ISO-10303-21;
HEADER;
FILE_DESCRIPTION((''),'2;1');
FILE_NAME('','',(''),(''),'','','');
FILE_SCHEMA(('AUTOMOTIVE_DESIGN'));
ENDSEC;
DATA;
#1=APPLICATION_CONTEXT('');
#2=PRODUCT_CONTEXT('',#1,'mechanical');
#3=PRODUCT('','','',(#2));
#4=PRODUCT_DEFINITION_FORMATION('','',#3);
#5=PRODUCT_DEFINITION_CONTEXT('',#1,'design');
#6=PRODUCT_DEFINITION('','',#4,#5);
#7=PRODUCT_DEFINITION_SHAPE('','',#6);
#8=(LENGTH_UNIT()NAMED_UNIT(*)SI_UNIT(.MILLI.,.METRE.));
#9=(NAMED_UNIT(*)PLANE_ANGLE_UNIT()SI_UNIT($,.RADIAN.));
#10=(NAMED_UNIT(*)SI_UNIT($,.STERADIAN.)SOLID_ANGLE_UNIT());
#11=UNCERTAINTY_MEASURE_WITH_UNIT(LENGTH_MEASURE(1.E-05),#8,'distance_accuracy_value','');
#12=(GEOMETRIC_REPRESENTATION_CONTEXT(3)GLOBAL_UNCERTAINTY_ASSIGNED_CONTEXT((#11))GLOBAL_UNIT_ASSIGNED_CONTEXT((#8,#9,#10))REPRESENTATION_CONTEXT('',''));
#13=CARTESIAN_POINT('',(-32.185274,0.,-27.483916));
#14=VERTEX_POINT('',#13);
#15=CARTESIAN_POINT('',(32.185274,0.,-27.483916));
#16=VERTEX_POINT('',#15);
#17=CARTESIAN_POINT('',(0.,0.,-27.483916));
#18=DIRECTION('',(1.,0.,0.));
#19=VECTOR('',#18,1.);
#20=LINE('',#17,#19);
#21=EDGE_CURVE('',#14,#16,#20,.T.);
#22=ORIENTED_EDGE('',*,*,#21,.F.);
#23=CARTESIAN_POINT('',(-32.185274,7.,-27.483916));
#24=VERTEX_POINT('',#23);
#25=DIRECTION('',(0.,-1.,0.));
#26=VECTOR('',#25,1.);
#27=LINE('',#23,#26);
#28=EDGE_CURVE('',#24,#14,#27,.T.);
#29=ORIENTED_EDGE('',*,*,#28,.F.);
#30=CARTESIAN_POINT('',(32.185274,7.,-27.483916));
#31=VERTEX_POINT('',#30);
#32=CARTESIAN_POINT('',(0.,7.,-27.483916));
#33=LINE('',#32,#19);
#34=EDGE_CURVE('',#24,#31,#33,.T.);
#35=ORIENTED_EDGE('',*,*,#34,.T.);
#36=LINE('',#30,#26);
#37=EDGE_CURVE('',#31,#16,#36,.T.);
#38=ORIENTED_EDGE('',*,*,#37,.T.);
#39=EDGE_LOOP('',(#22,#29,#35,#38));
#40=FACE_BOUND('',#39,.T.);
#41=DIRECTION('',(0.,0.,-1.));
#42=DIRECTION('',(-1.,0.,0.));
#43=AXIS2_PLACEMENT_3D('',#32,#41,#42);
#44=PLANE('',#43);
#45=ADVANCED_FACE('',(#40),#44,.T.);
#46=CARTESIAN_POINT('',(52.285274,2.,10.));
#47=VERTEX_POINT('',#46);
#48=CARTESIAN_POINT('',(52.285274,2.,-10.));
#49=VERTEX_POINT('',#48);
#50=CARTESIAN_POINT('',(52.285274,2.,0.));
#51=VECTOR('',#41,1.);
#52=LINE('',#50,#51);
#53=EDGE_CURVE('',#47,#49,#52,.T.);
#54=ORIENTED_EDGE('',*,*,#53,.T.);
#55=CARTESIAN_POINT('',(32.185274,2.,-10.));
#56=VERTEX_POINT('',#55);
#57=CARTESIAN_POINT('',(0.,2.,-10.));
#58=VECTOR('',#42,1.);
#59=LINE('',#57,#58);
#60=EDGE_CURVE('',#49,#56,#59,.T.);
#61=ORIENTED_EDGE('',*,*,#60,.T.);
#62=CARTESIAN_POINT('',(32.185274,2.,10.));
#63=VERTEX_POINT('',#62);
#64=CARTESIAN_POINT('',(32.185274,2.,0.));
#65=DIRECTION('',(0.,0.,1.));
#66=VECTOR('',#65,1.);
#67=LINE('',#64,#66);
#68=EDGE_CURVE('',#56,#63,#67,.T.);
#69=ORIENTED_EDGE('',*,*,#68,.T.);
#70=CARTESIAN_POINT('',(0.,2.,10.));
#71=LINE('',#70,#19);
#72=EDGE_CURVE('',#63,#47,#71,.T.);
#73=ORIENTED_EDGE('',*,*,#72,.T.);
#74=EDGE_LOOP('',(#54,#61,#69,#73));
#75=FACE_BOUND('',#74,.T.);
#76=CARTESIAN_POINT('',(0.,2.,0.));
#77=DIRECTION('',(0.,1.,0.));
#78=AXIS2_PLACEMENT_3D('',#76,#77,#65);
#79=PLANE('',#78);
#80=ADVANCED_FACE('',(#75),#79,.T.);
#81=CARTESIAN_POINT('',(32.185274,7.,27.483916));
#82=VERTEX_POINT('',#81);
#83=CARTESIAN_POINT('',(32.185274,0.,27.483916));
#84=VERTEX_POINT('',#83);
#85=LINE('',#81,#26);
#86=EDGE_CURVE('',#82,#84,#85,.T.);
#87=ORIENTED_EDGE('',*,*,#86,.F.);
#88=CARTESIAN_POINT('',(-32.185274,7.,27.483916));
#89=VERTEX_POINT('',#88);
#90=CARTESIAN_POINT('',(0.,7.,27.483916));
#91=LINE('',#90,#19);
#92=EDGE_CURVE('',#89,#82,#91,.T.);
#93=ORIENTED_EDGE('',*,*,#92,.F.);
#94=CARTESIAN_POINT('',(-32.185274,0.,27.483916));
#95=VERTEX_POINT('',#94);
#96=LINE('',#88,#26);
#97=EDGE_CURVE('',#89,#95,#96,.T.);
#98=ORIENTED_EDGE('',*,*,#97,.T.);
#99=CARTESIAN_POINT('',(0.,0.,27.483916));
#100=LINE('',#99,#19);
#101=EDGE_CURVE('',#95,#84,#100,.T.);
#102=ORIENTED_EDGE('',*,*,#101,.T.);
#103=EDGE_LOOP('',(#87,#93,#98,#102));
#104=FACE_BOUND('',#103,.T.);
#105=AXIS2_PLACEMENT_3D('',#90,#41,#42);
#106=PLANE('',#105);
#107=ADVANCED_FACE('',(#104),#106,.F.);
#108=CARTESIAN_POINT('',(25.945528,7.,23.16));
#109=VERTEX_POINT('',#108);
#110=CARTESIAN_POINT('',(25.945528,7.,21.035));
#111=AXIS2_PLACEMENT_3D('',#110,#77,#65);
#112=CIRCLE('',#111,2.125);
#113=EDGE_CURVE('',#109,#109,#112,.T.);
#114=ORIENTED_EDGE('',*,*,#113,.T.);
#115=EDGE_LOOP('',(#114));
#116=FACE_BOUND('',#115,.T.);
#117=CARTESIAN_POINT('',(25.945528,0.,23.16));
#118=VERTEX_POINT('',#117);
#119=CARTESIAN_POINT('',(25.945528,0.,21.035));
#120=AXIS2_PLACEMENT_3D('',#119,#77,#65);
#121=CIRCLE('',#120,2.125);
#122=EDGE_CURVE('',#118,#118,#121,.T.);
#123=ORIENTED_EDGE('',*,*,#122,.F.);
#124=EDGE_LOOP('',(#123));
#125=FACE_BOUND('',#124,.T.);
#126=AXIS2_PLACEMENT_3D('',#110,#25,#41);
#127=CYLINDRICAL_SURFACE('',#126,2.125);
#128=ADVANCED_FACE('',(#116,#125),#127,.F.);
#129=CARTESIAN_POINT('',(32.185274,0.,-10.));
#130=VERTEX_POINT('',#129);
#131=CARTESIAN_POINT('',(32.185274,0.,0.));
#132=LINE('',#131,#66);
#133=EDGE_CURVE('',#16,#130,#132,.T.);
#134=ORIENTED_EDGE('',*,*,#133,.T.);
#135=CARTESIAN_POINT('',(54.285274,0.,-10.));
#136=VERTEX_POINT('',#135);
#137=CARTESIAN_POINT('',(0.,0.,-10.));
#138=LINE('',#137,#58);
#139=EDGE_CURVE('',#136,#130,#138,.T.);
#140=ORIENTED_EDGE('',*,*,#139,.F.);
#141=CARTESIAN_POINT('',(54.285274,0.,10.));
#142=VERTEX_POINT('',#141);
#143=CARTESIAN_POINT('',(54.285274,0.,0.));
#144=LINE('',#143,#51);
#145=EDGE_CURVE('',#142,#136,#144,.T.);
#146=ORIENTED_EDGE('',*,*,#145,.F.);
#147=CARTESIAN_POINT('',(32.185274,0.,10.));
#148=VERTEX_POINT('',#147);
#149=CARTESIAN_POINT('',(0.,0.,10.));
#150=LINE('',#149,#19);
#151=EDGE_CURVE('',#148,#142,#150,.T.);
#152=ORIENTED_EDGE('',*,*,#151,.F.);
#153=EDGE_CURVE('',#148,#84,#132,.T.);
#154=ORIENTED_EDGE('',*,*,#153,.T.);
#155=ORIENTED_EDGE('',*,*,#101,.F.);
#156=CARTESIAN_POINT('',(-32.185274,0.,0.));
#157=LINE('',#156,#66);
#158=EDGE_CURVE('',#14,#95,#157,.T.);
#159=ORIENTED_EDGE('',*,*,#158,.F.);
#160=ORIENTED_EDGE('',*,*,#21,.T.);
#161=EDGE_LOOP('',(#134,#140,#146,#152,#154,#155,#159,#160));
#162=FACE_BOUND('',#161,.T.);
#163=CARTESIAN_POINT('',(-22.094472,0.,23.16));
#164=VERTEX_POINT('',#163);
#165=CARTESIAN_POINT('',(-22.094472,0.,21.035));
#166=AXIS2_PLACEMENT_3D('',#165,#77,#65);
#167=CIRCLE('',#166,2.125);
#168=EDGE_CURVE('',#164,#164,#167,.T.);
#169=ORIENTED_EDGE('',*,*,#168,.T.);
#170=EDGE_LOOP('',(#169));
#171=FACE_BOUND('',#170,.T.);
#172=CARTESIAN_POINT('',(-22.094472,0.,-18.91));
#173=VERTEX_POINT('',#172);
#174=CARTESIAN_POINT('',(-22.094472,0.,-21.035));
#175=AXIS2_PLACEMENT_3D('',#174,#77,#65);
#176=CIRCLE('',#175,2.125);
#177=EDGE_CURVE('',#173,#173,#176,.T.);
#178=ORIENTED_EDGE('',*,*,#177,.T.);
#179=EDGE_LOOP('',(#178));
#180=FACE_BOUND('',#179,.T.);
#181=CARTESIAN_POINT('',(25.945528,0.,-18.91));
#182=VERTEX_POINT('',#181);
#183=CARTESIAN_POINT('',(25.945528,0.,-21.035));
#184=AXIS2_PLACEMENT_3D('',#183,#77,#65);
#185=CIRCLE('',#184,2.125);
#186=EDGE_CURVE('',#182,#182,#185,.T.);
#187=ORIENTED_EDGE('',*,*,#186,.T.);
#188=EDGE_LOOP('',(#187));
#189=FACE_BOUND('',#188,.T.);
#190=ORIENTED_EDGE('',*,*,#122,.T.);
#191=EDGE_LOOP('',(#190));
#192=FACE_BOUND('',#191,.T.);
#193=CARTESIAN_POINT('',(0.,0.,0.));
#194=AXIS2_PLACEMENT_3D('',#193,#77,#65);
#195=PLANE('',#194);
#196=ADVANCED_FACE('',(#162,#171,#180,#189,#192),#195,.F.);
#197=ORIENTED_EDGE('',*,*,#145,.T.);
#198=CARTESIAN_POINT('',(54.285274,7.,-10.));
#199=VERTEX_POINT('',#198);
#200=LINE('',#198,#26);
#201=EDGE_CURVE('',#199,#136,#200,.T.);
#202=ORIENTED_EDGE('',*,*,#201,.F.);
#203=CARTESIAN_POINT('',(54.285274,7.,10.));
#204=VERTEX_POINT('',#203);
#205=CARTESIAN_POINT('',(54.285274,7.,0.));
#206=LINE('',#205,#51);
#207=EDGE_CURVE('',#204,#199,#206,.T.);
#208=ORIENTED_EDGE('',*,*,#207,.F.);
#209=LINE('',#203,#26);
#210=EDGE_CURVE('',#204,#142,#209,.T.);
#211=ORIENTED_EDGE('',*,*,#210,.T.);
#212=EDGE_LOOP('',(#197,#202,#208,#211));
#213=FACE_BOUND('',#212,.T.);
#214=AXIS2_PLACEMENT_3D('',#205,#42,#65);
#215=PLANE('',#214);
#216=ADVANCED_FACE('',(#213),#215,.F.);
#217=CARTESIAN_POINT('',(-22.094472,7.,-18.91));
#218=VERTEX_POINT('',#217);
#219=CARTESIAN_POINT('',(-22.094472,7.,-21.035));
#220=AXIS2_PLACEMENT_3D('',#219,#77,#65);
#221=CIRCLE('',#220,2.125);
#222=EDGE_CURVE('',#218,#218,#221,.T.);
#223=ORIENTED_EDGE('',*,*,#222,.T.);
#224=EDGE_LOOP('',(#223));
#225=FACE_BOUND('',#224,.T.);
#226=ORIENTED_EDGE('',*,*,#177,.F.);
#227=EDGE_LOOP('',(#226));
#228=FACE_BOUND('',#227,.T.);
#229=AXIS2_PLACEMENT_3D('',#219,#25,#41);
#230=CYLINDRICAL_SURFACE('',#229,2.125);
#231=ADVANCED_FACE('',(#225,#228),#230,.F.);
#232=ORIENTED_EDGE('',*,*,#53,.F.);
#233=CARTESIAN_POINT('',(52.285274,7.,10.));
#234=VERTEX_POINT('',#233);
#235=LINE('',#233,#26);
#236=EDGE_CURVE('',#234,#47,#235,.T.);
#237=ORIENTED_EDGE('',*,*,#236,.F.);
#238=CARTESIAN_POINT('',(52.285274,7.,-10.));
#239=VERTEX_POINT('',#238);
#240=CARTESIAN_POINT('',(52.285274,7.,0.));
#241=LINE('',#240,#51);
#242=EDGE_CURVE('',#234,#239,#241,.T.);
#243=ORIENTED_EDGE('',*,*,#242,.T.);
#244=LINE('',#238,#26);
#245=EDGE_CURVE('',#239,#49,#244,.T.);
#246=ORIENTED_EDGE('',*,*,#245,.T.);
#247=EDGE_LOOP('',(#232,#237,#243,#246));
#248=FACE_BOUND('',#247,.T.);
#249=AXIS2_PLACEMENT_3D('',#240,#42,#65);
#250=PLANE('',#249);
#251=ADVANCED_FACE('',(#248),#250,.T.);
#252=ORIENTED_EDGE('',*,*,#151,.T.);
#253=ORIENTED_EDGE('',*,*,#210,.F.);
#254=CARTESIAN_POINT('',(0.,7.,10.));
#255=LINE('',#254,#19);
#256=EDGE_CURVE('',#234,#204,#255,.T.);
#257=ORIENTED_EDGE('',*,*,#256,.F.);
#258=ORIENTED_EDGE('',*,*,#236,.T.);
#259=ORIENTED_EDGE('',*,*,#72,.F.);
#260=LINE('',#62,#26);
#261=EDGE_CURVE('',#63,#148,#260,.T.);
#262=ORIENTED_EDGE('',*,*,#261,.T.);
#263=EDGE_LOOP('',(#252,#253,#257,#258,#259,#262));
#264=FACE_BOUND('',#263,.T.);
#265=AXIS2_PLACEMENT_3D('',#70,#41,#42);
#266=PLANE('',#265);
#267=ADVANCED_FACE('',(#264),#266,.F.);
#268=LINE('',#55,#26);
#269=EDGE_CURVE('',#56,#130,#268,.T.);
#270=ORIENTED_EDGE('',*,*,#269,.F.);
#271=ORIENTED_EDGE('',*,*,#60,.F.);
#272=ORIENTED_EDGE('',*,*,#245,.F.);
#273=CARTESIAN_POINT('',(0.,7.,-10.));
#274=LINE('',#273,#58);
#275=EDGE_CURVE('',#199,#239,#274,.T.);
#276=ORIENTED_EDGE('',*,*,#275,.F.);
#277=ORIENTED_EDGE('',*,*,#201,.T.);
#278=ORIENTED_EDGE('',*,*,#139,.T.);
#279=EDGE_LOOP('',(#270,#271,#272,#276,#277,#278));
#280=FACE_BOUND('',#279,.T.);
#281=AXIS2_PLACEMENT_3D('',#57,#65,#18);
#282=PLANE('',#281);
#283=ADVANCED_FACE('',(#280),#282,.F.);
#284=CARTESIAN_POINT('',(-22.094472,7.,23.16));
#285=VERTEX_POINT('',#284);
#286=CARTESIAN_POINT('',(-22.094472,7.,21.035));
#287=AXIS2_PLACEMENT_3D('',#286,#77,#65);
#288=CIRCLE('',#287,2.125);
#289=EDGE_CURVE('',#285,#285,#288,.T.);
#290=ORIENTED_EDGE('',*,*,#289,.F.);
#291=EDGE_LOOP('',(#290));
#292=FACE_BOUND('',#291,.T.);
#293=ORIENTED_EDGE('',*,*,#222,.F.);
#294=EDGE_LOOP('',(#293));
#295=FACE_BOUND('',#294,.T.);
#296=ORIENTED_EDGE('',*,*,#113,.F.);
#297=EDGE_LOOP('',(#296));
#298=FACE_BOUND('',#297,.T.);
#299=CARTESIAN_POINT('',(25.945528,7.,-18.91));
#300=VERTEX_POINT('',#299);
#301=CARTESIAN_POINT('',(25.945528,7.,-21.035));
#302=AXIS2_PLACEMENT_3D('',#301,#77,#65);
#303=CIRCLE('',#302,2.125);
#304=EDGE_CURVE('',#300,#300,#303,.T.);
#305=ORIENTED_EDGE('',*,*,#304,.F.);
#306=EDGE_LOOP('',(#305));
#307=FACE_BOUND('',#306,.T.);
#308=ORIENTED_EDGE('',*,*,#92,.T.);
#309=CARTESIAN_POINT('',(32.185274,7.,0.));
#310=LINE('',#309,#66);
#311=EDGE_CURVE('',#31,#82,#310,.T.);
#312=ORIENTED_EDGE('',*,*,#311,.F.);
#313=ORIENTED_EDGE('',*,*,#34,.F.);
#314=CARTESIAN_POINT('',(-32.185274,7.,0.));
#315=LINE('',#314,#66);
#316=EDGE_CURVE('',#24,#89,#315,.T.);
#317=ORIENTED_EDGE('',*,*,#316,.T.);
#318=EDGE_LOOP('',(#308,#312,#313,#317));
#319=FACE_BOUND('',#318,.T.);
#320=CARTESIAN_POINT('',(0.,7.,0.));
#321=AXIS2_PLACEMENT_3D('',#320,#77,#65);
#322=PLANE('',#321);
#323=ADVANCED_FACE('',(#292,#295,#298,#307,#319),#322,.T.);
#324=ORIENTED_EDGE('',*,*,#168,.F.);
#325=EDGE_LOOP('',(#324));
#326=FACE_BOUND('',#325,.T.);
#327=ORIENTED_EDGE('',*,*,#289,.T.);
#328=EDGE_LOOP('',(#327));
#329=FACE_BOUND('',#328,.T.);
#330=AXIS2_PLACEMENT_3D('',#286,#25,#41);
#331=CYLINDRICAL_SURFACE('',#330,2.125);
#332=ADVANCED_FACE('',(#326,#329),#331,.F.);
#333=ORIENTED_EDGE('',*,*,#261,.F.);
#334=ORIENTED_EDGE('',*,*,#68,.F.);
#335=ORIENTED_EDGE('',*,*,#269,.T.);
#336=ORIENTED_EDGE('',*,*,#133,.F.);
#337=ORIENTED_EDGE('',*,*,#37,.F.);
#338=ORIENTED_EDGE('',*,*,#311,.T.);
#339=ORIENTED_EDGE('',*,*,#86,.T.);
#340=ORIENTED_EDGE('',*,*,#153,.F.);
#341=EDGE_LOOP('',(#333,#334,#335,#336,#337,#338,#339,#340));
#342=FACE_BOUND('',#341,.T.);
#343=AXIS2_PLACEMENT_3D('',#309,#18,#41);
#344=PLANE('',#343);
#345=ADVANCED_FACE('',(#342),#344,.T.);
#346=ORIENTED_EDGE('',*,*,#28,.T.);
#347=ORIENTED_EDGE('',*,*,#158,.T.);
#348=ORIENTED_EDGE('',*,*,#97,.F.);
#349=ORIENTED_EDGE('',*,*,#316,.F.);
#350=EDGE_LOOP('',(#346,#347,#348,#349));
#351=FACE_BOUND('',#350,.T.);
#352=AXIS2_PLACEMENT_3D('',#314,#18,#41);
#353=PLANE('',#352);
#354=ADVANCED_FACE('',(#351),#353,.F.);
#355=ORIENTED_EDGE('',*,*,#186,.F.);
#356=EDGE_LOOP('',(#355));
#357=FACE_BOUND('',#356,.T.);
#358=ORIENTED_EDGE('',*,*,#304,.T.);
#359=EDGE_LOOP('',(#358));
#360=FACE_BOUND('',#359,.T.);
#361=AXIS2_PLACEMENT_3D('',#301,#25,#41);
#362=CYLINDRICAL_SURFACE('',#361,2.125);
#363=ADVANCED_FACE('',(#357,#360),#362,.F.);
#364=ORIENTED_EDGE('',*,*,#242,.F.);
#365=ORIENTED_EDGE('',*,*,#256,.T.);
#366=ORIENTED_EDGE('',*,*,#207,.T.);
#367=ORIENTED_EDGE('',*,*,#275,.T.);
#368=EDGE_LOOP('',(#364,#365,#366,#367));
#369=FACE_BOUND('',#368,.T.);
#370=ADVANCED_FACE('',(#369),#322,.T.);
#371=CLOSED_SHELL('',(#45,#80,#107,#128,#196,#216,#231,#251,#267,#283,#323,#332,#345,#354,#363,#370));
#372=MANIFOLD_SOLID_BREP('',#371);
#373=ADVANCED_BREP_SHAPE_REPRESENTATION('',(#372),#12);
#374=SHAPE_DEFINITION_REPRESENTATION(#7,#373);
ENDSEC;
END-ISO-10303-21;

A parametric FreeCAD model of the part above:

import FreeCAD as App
import Part
import Sketcher

V = App.Vector
Q = App.Units.Quantity


def add_polygon(sketch, points):
    """Adds a closed chain of lines whose ends are joined by coincident constraints."""
    first, n = sketch.GeometryCount, len(points)
    for a, b in zip(points, points[1:] + points[:1]):
        sketch.addGeometry(Part.LineSegment(App.Vector(*a, 0), App.Vector(*b, 0)), False)
    for i in range(n):
        sketch.addConstraint(Sketcher.Constraint("Coincident", first + i, 2, first + (i + 1) % n, 1))

doc = App.newDocument("Part")
body = doc.addObject("PartDesign::Body", "Body")
body.AllowCompound = True

sketch1 = body.newObject("Sketcher::SketchObject", "Sketch")
sketch1.AttachmentSupport = (doc.getObject("XZ_Plane"), [""])
sketch1.MapMode = "FlatFace"
add_polygon(sketch1, [(32.2, -27.5), (-32.2, -27.5), (-32.2, 27.5), (32.2, 27.5)])
sketch1.addGeometry(Part.Circle(V(-22.1, 21, 0), V(0, 0, 1), 2.1), False)
sketch1.addGeometry(Part.Circle(V(25.9, -21, 0), V(0, 0, 1), 2.1), False)
sketch1.addGeometry(Part.Circle(V(25.9, 21, 0), V(0, 0, 1), 2.1), False)
sketch1.addGeometry(Part.Circle(V(-22.1, -21, 0), V(0, 0, 1), 2.1), False)
add_polygon(sketch1, [(52.3, -10), (52.3, 10), (54.3, 10), (54.3, -10)])
sketch1.addConstraint(Sketcher.Constraint("Horizontal", 0))
sketch1.addConstraint(Sketcher.Constraint("Vertical", 1))
sketch1.addConstraint(Sketcher.Constraint("Horizontal", 2))
sketch1.addConstraint(Sketcher.Constraint("Vertical", 3))
sketch1.addConstraint(Sketcher.Constraint("Vertical", 8))
sketch1.addConstraint(Sketcher.Constraint("Horizontal", 9))
sketch1.addConstraint(Sketcher.Constraint("Vertical", 10))
sketch1.addConstraint(Sketcher.Constraint("Horizontal", 11))
sketch1.addConstraint(Sketcher.Constraint("Equal", 4, 5))
sketch1.addConstraint(Sketcher.Constraint("Equal", 5, 6))
sketch1.addConstraint(Sketcher.Constraint("Equal", 6, 7))
sketch1.addConstraint(Sketcher.Constraint("Symmetric", 0, 2, 2, 2, -1, 1))
sketch1.addConstraint(Sketcher.Constraint("Symmetric", 5, 3, 6, 3, -1))
sketch1.addConstraint(Sketcher.Constraint("Symmetric", 4, 3, 7, 3, -1))
sketch1.addConstraint(Sketcher.Constraint("Horizontal", 4, 3, 6, 3))
sketch1.addConstraint(Sketcher.Constraint("Diameter", 4, Q("4.25 mm")))
sketch1.addConstraint(Sketcher.Constraint("DistanceX", 9, 1, 9, 2, Q("2 mm")))
sketch1.addConstraint(Sketcher.Constraint("DistanceY", 8, 1, 8, 2, Q("20 mm")))
sketch1.addConstraint(Sketcher.Constraint("DistanceY", -1, 1, 8, 2, Q("10 mm")))
sketch1.addConstraint(Sketcher.Constraint("DistanceX", 2, 2, 8, 2, Q("20.1 mm")))
sketch1.addConstraint(Sketcher.Constraint("DistanceX", 4, 3, 5, 3, Q("48.04 mm")))
sketch1.addConstraint(Sketcher.Constraint("DistanceY", 5, 3, 4, 3, Q("42.07 mm")))
sketch1.addConstraint(Sketcher.Constraint("DistanceX", 0, 2, 0, 1, Q("64.370549 mm")))
sketch1.addConstraint(Sketcher.Constraint("DistanceY", 1, 1, 1, 2, Q("54.967832 mm")))
sketch1.addConstraint(Sketcher.Constraint("DistanceX", 4, 3, -1, 1, Q("22.094472 mm")))
pad1 = body.newObject("PartDesign::Pad", "Pad")
pad1.Profile = sketch1
pad1.Length = 7
pad1.Reversed = True

sketch2 = body.newObject("Sketcher::SketchObject", "Sketch001")
sketch2.AttachmentSupport = (doc.getObject("XZ_Plane"), [""])
sketch2.MapMode = "FlatFace"
add_polygon(sketch2, [(32, -10), (32, 10), (52, 10), (52, -10)])
sketch2.addConstraint(Sketcher.Constraint("Vertical", 0))
sketch2.addConstraint(Sketcher.Constraint("Horizontal", 1))
sketch2.addConstraint(Sketcher.Constraint("Vertical", 2))
sketch2.addConstraint(Sketcher.Constraint("Horizontal", 3))
sketch2.addConstraint(Sketcher.Constraint("DistanceY", 0, 1, 0, 2, Q("20 mm")))
sketch2.addConstraint(Sketcher.Constraint("DistanceX", 1, 1, 1, 2, Q("20.1 mm")))
sketch2.addConstraint(Sketcher.Constraint("DistanceY", -1, 1, 0, 2, Q("10 mm")))
sketch2.addConstraint(Sketcher.Constraint("DistanceX", -1, 1, 0, 2, Q("32.185274 mm")))
pad2 = body.newObject("PartDesign::Pad", "Pad001")
pad2.Profile = sketch2
pad2.Length = 2
pad2.Reversed = True

doc.recompute()
